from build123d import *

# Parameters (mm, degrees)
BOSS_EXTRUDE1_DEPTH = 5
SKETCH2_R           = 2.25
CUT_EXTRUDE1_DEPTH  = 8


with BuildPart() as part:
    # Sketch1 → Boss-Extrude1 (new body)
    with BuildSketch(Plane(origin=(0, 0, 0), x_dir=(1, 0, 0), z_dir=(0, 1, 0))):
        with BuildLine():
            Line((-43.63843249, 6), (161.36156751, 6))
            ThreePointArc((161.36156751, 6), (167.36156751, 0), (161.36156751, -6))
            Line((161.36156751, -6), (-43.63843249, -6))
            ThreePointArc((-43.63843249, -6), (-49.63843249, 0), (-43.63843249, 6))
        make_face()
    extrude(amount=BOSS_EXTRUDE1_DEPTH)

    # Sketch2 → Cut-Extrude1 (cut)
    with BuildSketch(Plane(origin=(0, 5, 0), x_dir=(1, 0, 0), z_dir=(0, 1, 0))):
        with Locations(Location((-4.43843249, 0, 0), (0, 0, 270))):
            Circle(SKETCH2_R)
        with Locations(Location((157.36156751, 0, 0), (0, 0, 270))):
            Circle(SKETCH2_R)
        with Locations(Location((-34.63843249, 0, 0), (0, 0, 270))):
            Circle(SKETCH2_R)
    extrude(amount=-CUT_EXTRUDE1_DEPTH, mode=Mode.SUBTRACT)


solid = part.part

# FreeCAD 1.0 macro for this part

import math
import FreeCAD as App
import Part
import Sketcher

V = App.Vector

doc = App.newDocument("Part")
body = doc.addObject("PartDesign::Body", "Body")

sketch1 = body.newObject("Sketcher::SketchObject", "Sketch")
sketch1.AttachmentSupport = (doc.getObject("XZ_Plane"), [""])
sketch1.MapMode = "FlatFace"
sketch1.addGeometry(Part.LineSegment(V(161.361568, -6, 0), V(-43.638432, -6, 0)), False)
sketch1.addGeometry(Part.ArcOfCircle(Part.Circle(V(-43.638432, 0, 0), V(0, 0, 1), 6), math.radians(90), math.radians(270)), False)
sketch1.addGeometry(Part.LineSegment(V(-43.638432, 6, 0), V(161.361568, 6, 0)), False)
sketch1.addGeometry(Part.ArcOfCircle(Part.Circle(V(161.361568, 0, 0), V(0, 0, 1), 6), math.radians(-90), math.radians(90)), False)
sketch1.addConstraint(Sketcher.Constraint("Tangent", 0, 2, 1, 2))
sketch1.addConstraint(Sketcher.Constraint("Tangent", 1, 1, 2, 1))
sketch1.addConstraint(Sketcher.Constraint("Tangent", 2, 2, 3, 2))
sketch1.addConstraint(Sketcher.Constraint("Tangent", 3, 1, 0, 1))
sketch1.addConstraint(Sketcher.Constraint("Horizontal", 0))
sketch1.addConstraint(Sketcher.Constraint("Horizontal", 2))
sketch1.addConstraint(Sketcher.Constraint("PointOnObject", 1, 3, -1))
sketch1.addConstraint(Sketcher.Constraint("Radius", 1, 6.0))
sketch1.addConstraint(Sketcher.Constraint("DistanceX", 0, 2, 0, 1, 205.0))
sketch1.addConstraint(Sketcher.Constraint("DistanceX", 1, 3, -1, 1, 43.638432))
pad1 = body.newObject("PartDesign::Pad", "Pad")
pad1.Profile = sketch1
pad1.Length = 5
pad1.Reversed = True

sketch2 = body.newObject("Sketcher::SketchObject", "Sketch001")
sketch2.AttachmentSupport = (doc.getObject("XZ_Plane"), [""])
sketch2.MapMode = "FlatFace"
sketch2.AttachmentOffset = App.Placement(V(0, 0, -5), App.Rotation())
sketch2.addGeometry(Part.Circle(V(-4.438432, 0, 0), V(0, 0, 1), 2.25), False)
sketch2.addGeometry(Part.Circle(V(157.361568, 0, 0), V(0, 0, 1), 2.25), False)
sketch2.addGeometry(Part.Circle(V(-34.638432, 0, 0), V(0, 0, 1), 2.25), False)
sketch2.addConstraint(Sketcher.Constraint("Equal", 0, 1))
sketch2.addConstraint(Sketcher.Constraint("Equal", 1, 2))
sketch2.addConstraint(Sketcher.Constraint("PointOnObject", 0, 3, -1))
sketch2.addConstraint(Sketcher.Constraint("PointOnObject", 1, 3, -1))
sketch2.addConstraint(Sketcher.Constraint("PointOnObject", 2, 3, -1))
sketch2.addConstraint(Sketcher.Constraint("Diameter", 0, 4.5))
sketch2.addConstraint(Sketcher.Constraint("DistanceX", 2, 3, 1, 3, 192.0))
sketch2.addConstraint(Sketcher.Constraint("DistanceX", 0, 3, 1, 3, 161.8))
sketch2.addConstraint(Sketcher.Constraint("DistanceX", 0, 3, -1, 1, 4.438432))
pocket1 = body.newObject("PartDesign::Pocket", "Pocket")
pocket1.Profile = sketch2
pocket1.Length = 8
pocket1.Reversed = True

doc.recompute()
